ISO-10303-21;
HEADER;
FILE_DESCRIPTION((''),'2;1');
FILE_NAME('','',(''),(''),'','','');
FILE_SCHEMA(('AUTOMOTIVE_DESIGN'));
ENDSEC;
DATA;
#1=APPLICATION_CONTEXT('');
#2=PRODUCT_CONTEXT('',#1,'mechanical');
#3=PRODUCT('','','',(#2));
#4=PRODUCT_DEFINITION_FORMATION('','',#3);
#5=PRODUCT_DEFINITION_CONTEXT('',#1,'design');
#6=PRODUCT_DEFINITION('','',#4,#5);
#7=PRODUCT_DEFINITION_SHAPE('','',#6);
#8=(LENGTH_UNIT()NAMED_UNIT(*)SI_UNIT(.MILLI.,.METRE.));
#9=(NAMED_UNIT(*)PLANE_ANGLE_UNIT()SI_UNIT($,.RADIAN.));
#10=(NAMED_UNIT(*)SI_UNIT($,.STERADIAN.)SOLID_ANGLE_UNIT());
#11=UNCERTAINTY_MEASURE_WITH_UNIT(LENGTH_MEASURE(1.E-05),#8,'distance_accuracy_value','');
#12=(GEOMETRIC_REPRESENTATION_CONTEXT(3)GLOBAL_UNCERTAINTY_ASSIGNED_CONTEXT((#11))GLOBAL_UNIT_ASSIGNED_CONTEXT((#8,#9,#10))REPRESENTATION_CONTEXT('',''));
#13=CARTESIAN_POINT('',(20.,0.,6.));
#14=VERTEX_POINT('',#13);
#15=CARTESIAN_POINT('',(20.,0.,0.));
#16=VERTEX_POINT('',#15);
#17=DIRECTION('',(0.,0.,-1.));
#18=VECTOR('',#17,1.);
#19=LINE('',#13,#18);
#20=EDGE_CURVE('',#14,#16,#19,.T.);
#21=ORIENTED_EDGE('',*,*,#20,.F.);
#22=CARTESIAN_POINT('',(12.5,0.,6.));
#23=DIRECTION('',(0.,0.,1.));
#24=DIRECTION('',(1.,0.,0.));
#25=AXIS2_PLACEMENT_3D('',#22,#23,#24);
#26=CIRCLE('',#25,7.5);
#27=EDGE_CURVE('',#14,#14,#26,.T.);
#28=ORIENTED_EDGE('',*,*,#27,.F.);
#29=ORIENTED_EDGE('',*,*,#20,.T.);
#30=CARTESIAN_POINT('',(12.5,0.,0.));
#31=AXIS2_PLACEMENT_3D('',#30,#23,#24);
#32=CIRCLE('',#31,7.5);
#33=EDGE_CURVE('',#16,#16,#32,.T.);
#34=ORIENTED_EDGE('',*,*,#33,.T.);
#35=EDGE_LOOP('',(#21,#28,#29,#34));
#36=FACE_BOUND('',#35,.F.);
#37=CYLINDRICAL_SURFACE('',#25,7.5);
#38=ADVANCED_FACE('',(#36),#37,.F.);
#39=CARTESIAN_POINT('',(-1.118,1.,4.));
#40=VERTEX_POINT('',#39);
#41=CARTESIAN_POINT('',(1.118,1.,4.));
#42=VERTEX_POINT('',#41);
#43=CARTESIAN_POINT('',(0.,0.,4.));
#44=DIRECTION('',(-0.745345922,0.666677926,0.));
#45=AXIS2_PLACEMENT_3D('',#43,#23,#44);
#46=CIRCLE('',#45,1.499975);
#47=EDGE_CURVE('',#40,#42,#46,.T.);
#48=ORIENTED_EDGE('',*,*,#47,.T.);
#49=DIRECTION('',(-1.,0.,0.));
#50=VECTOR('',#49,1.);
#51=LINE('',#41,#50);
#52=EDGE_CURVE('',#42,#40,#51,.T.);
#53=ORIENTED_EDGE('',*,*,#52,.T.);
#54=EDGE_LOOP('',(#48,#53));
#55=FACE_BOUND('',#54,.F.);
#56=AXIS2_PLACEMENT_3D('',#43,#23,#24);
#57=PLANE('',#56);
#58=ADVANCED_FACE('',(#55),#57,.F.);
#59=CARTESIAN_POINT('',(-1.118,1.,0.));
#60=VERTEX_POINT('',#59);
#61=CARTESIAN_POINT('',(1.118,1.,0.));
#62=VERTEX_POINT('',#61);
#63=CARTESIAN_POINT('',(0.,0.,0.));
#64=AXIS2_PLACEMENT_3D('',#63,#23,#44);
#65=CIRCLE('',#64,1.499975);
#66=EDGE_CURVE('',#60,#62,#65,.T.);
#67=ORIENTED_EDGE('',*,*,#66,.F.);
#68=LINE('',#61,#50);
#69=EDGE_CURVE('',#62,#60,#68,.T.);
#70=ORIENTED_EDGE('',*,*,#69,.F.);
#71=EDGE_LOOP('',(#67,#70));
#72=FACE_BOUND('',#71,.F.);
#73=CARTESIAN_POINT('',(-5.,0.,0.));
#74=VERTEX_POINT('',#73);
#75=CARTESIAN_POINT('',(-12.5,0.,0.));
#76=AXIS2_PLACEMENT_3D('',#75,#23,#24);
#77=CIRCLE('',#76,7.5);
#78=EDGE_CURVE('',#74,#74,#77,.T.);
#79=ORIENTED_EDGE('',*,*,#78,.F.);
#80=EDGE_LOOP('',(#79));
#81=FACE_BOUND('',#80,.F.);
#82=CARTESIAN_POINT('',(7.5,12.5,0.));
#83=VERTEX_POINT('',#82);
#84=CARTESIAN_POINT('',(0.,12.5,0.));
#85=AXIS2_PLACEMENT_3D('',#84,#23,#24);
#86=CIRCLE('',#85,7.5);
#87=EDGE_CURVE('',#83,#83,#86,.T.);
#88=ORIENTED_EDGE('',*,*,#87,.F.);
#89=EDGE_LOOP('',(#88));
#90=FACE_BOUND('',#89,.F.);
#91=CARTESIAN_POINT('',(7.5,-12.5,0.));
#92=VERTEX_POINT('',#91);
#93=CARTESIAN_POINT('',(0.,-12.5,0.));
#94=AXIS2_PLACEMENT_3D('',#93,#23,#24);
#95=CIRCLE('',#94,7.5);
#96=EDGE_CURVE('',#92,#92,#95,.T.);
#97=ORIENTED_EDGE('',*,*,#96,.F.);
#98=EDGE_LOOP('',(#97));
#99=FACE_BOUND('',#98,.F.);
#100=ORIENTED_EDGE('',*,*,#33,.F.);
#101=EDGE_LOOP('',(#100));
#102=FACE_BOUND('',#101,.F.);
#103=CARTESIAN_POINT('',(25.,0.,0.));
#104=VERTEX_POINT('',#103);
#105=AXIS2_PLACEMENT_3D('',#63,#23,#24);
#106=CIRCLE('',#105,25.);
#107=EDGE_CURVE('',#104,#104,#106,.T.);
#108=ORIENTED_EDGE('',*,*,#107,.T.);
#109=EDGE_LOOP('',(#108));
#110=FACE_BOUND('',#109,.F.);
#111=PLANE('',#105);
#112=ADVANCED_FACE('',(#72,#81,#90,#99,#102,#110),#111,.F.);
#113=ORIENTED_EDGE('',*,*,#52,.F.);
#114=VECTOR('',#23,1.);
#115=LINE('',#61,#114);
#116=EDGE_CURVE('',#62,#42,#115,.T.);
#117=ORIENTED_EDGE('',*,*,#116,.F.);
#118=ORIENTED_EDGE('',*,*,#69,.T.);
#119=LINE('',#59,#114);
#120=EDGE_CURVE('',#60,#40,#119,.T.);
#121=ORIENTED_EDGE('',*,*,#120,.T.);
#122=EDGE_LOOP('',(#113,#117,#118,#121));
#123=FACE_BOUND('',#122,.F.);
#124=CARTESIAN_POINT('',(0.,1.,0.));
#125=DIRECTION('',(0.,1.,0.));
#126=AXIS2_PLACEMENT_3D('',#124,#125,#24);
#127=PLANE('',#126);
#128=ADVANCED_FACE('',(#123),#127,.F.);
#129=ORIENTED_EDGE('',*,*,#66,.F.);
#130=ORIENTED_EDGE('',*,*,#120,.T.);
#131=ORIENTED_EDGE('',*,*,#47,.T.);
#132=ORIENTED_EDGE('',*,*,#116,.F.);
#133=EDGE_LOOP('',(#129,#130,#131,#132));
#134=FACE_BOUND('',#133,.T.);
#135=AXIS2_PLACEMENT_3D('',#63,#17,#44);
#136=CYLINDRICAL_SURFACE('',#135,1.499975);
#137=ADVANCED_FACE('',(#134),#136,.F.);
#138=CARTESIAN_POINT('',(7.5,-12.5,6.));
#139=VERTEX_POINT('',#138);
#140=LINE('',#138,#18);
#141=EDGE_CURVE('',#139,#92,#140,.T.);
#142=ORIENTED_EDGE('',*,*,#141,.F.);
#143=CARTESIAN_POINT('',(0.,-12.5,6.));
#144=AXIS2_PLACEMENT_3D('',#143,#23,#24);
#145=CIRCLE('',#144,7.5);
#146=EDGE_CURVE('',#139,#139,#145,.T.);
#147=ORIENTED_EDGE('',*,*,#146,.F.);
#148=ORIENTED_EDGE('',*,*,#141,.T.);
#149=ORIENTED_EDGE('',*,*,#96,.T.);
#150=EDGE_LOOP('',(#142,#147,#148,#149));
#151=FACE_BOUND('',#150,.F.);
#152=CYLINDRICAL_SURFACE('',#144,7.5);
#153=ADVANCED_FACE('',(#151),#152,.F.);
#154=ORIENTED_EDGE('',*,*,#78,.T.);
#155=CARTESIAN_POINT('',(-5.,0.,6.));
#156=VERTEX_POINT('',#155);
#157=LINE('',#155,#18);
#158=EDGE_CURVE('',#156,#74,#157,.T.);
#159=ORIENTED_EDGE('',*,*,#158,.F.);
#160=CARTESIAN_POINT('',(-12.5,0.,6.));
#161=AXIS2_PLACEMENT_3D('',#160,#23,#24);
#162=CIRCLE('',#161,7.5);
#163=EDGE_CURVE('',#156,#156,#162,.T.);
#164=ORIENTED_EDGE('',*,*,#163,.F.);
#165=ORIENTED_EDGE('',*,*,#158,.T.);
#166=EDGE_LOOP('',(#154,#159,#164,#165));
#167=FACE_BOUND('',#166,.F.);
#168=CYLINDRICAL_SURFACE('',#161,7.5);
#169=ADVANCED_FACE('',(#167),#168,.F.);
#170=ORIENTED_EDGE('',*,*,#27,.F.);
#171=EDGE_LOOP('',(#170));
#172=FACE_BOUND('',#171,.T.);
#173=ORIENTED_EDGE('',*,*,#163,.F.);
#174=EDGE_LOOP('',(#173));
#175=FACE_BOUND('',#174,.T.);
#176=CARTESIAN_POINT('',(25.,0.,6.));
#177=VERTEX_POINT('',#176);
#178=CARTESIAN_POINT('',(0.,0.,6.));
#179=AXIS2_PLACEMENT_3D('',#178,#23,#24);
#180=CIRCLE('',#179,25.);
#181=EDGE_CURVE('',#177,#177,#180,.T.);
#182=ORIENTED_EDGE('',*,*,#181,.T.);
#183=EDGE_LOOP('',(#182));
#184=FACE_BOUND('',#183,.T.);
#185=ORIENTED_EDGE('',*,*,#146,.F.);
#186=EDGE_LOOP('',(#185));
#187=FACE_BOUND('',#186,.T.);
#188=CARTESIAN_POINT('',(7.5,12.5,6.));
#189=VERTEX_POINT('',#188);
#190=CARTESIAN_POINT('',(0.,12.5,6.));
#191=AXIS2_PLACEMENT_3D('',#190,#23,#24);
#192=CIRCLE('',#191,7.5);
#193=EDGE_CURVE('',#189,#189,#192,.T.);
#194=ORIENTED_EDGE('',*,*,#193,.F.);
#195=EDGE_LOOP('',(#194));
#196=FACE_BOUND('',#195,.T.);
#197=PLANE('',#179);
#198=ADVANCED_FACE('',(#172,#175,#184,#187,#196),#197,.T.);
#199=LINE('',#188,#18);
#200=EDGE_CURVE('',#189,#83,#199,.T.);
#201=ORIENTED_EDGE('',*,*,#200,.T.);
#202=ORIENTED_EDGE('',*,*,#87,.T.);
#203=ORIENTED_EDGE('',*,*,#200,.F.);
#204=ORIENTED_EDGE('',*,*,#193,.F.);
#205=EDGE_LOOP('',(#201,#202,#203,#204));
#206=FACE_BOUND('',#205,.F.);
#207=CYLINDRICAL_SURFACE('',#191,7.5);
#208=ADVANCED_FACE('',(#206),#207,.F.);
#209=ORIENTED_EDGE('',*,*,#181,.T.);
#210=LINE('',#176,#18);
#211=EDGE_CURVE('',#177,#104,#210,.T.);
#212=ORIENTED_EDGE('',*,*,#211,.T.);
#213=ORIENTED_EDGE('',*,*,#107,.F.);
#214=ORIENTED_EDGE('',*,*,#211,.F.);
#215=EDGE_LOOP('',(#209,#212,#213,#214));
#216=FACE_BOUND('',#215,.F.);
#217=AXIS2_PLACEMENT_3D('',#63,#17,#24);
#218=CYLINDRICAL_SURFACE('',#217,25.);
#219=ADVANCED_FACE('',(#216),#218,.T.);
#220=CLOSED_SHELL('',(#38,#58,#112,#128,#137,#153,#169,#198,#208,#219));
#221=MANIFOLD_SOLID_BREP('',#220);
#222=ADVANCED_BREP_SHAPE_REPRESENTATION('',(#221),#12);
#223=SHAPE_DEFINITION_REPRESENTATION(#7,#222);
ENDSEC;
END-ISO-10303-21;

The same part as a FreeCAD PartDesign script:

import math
import FreeCAD as App
import Part
import Sketcher
Q = App.Units.Quantity

doc = App.newDocument("Part")
params = doc.addObject("Spreadsheet::Sheet", "Params")
for row, (alias, value) in enumerate([
    ("sketch1_diameter", "50 mm"),
    ("sketch1_radius", "1.5 mm"),
    ("pad1_length", "4 mm"),
    ("sketch2_diameter", "50 mm"),
    ("pad2_length", "2 mm"),
    ("sketch3_diameter", "15 mm"),
], start=1):
    params.set(f"A{row}", alias)
    params.set(f"B{row}", "=" + value)
    params.setAlias(f"B{row}", alias)

body = doc.addObject("PartDesign::Body", "Body")

# Sketch on XY plane
sketch1 = body.newObject("Sketcher::SketchObject", "Sketch")
sketch1.AttachmentSupport = (doc.getObject("XY_Plane"), [""])
sketch1.MapMode = "FlatFace"
sketch1.addGeometry(Part.Circle(App.Vector(0, 0, 0), App.Vector(0, 0, 1), 25), False)
sketch1.addGeometry(Part.ArcOfCircle(Part.Circle(App.Vector(0, 0, 0), App.Vector(0, 0, 1), 1.5), math.radians(138), math.radians(402)), False)
sketch1.addGeometry(Part.LineSegment(App.Vector(-1.1, 1, 0), App.Vector(1.1, 1, 0)), False)
sketch1.addConstraint(Sketcher.Constraint("Coincident", 1, 1, 2, 1))
sketch1.addConstraint(Sketcher.Constraint("Coincident", 2, 2, 1, 2))
sketch1.addConstraint(Sketcher.Constraint("Horizontal", 2))
sketch1.addConstraint(Sketcher.Constraint("Coincident", 0, 3, -1, 1))
sketch1.addConstraint(Sketcher.Constraint("Coincident", 1, 3, -1, 1))
sketch1.addConstraint(Sketcher.Constraint("Diameter", 0, Q("50 mm")))
sketch1.addConstraint(Sketcher.Constraint("Radius", 1, Q("1.5 mm")))
sketch1.addConstraint(Sketcher.Constraint("DistanceY", -1, 1, 1, 1, Q("1 mm")))
sketch1.setExpression("Constraints[5]", "Params.sketch1_diameter")
sketch1.setExpression("Constraints[6]", "Params.sketch1_radius")
pad1 = body.newObject("PartDesign::Pad", "Pad")
pad1.Profile = sketch1
pad1.setExpression("Length", "Params.pad1_length")

# Sketch on XY plane
sketch2 = body.newObject("Sketcher::SketchObject", "Sketch001")
sketch2.AttachmentSupport = (doc.getObject("XY_Plane"), [""])
sketch2.MapMode = "FlatFace"
sketch2.AttachmentOffset = App.Placement(App.Vector(0, 0, 4), App.Rotation())
sketch2.addGeometry(Part.Circle(App.Vector(0, 0, 0), App.Vector(0, 0, 1), 25), False)
sketch2.addConstraint(Sketcher.Constraint("Coincident", 0, 3, -1, 1))
sketch2.addConstraint(Sketcher.Constraint("Diameter", 0, Q("50 mm")))
sketch2.setExpression("Constraints[1]", "Params.sketch2_diameter")
pad2 = body.newObject("PartDesign::Pad", "Pad001")
pad2.Profile = sketch2
pad2.setExpression("Length", "Params.pad2_length")

# Sketch on XY plane
sketch3 = body.newObject("Sketcher::SketchObject", "Sketch002")
sketch3.AttachmentSupport = (doc.getObject("XY_Plane"), [""])
sketch3.MapMode = "FlatFace"
sketch3.AttachmentOffset = App.Placement(App.Vector(0, 0, 6), App.Rotation())
sketch3.addGeometry(Part.Circle(App.Vector(12, 0, 0), App.Vector(0, 0, 1), 8), False)
sketch3.addGeometry(Part.Circle(App.Vector(0, 12, 0), App.Vector(0, 0, 1), 8), False)
sketch3.addGeometry(Part.Circle(App.Vector(-12, 0, 0), App.Vector(0, 0, 1), 8), False)
sketch3.addGeometry(Part.Circle(App.Vector(0, -12, 0), App.Vector(0, 0, 1), 8), False)
sketch3.addConstraint(Sketcher.Constraint("Equal", 0, 1))
sketch3.addConstraint(Sketcher.Constraint("Equal", 1, 2))
sketch3.addConstraint(Sketcher.Constraint("Equal", 2, 3))
sketch3.addConstraint(Sketcher.Constraint("Symmetric", 0, 3, 2, 3, -1, 1))
sketch3.addConstraint(Sketcher.Constraint("Symmetric", 1, 3, 3, 3, -1, 1))
sketch3.addConstraint(Sketcher.Constraint("PointOnObject", 0, 3, -1))
sketch3.addConstraint(Sketcher.Constraint("PointOnObject", 1, 3, -2))
sketch3.addConstraint(Sketcher.Constraint("Diameter", 0, Q("15 mm")))
sketch3.addConstraint(Sketcher.Constraint("DistanceX", -1, 1, 0, 3, Q("12.5 mm")))
sketch3.addConstraint(Sketcher.Constraint("DistanceY", -1, 1, 1, 3, Q("12.5 mm")))
sketch3.setExpression("Constraints[7]", "Params.sketch3_diameter")
pocket1 = body.newObject("PartDesign::Pocket", "Pocket")
pocket1.Profile = sketch3
pocket1.Type = "ThroughAll"

doc.recompute()
